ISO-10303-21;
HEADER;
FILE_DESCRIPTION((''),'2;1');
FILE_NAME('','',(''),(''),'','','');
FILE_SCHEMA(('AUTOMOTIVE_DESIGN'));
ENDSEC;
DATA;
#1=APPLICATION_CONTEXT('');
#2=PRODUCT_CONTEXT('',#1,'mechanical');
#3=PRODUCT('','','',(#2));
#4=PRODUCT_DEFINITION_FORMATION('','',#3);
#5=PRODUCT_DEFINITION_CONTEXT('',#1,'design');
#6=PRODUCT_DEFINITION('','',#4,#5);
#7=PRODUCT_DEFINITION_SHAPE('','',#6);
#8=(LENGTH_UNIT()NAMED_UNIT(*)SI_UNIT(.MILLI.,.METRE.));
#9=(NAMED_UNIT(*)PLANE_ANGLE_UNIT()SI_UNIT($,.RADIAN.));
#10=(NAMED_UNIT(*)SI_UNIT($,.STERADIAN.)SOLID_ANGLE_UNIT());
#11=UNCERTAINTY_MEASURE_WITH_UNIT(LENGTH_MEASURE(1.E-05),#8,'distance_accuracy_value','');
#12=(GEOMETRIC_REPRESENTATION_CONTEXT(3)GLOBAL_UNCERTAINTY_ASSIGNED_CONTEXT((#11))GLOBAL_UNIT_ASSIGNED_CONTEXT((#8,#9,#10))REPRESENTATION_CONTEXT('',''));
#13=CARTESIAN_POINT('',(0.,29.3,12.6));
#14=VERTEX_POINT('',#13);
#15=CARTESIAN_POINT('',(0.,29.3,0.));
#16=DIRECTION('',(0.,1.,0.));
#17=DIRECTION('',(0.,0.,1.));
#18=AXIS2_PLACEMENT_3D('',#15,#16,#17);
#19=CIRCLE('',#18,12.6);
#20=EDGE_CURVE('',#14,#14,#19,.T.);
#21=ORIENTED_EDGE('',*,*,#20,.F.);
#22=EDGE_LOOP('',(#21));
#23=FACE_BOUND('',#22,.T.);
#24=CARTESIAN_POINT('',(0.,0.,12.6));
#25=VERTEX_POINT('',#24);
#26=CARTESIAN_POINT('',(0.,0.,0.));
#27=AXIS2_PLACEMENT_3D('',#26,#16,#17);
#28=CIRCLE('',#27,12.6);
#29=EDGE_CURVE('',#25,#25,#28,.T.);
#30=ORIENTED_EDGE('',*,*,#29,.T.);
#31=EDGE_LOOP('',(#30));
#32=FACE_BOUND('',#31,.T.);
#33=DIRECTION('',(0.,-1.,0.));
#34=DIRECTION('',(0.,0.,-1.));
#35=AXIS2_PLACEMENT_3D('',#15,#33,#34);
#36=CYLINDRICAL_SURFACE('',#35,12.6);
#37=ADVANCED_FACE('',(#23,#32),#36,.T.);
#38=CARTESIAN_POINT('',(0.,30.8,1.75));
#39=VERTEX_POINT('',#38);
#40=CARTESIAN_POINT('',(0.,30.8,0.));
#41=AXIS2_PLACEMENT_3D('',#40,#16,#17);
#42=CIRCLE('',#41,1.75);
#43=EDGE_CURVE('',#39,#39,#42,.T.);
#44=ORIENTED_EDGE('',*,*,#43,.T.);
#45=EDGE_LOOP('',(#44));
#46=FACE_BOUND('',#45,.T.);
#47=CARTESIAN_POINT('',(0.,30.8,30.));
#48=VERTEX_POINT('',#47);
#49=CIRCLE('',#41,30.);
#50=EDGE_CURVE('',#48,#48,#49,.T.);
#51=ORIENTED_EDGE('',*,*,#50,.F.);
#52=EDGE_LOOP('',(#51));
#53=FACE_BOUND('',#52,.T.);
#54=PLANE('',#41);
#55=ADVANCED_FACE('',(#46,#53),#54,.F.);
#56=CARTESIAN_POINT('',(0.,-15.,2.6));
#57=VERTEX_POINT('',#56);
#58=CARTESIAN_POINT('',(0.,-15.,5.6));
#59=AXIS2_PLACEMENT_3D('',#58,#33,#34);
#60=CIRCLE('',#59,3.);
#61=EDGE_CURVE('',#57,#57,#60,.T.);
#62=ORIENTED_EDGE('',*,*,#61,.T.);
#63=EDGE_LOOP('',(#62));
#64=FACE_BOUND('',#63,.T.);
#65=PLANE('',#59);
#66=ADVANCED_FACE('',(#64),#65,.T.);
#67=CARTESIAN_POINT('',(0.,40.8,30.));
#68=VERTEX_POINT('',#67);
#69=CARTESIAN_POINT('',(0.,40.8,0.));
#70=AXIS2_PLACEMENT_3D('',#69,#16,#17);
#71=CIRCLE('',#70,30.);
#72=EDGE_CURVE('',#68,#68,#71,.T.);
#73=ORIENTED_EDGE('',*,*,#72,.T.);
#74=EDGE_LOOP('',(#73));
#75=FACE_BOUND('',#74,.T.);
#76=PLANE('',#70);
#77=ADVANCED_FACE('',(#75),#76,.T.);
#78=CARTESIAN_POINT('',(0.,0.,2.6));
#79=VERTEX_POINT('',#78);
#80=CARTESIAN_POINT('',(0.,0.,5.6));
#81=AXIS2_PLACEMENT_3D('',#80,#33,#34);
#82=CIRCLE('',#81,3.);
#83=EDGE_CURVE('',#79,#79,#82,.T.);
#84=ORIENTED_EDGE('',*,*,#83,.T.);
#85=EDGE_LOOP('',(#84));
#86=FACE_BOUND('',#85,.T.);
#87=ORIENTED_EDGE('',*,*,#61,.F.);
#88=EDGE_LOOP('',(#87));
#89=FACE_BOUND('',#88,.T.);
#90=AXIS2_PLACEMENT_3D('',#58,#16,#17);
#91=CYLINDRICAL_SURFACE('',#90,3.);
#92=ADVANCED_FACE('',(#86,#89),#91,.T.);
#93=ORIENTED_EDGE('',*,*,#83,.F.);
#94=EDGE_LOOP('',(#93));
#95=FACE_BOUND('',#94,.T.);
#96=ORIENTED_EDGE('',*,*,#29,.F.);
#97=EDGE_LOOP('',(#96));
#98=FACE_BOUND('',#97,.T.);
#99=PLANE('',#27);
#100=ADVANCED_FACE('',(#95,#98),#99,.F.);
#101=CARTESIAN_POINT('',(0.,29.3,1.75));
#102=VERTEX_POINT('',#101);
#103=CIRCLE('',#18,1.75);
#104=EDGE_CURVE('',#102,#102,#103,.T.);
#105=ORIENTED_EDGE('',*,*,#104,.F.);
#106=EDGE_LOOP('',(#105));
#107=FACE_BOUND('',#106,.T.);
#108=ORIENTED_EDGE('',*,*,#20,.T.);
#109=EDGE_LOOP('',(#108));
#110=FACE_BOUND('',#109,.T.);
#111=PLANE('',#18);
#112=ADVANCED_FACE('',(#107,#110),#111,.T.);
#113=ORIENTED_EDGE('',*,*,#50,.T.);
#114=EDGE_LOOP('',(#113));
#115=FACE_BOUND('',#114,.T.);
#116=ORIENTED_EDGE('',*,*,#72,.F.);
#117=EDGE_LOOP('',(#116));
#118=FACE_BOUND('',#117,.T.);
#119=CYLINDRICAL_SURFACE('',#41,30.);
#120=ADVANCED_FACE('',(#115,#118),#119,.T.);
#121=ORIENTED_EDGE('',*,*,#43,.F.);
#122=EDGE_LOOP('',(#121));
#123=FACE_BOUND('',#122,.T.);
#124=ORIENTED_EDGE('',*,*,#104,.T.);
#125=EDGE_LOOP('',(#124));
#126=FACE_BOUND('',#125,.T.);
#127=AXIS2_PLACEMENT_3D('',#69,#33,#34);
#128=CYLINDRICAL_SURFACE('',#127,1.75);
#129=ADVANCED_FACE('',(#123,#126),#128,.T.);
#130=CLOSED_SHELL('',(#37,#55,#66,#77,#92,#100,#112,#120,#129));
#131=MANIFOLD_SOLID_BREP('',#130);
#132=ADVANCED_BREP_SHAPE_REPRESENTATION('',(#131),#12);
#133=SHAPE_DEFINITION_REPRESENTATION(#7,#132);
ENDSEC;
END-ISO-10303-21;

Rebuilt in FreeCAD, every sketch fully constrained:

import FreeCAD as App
import Part
import Sketcher
from FreeCAD import Vector
Q = App.Units.Quantity

doc = App.newDocument("Part")
params = doc.addObject("Spreadsheet::Sheet", "Params")
for row, (alias, value) in enumerate([
    ("sketch1_diameter", "25.2 mm"),
    ("pad1_length", "29.3 mm"),
    ("sketch2_diameter", "3.5 mm"),
    ("pad2_length", "11.5 mm"),
    ("sketch3_diameter", "60 mm"),
    ("pad3_length", "10 mm"),
    ("sketch4_diameter", "6 mm"),
    ("pad4_length", "15 mm"),
], start=1):
    params.set(f"A{row}", alias)
    params.set(f"B{row}", "=" + value)
    params.setAlias(f"B{row}", alias)

body = doc.addObject("PartDesign::Body", "Body")

sketch1 = body.newObject("Sketcher::SketchObject", "Sketch")
sketch1.AttachmentSupport = (doc.getObject("XZ_Plane"), [""])
sketch1.MapMode = "FlatFace"
sketch1.addGeometry(Part.Circle(Vector(0, 0, 0), Vector(0, 0, 1), 13), False)
sketch1.addConstraint(Sketcher.Constraint("Coincident", 0, 3, -1, 1))
sketch1.addConstraint(Sketcher.Constraint("Diameter", 0, Q("25.2 mm")))
sketch1.setExpression("Constraints[1]", "Params.sketch1_diameter")
pad1 = body.newObject("PartDesign::Pad", "Pad")
pad1.Profile = sketch1
pad1.setExpression("Length", "Params.pad1_length")
pad1.Reversed = True

sketch2 = body.newObject("Sketcher::SketchObject", "Sketch001")
sketch2.AttachmentSupport = (doc.getObject("XZ_Plane"), [""])
sketch2.MapMode = "FlatFace"
sketch2.AttachmentOffset = App.Placement(Vector(0, 0, -29.3), App.Rotation())
sketch2.addGeometry(Part.Circle(Vector(0, 0, 0), Vector(0, 0, 1), 1.8), False)
sketch2.addConstraint(Sketcher.Constraint("Coincident", 0, 3, -1, 1))
sketch2.addConstraint(Sketcher.Constraint("Diameter", 0, Q("3.5 mm")))
sketch2.setExpression("Constraints[1]", "Params.sketch2_diameter")
pad2 = body.newObject("PartDesign::Pad", "Pad001")
pad2.Profile = sketch2
pad2.setExpression("Length", "Params.pad2_length")
pad2.Reversed = True

sketch3 = body.newObject("Sketcher::SketchObject", "Sketch002")
sketch3.AttachmentSupport = (doc.getObject("XZ_Plane"), [""])
sketch3.MapMode = "FlatFace"
sketch3.AttachmentOffset = App.Placement(Vector(0, 0, -40.8), App.Rotation())
sketch3.addGeometry(Part.Circle(Vector(0, 0, 0), Vector(0, 0, 1), 30), False)
sketch3.addConstraint(Sketcher.Constraint("Coincident", 0, 3, -1, 1))
sketch3.addConstraint(Sketcher.Constraint("Diameter", 0, Q("60 mm")))
sketch3.setExpression("Constraints[1]", "Params.sketch3_diameter")
pad3 = body.newObject("PartDesign::Pad", "Pad002")
pad3.Profile = sketch3
pad3.setExpression("Length", "Params.pad3_length")

sketch4 = body.newObject("Sketcher::SketchObject", "Sketch003")
sketch4.AttachmentSupport = (doc.getObject("XZ_Plane"), [""])
sketch4.MapMode = "FlatFace"
sketch4.addGeometry(Part.Circle(Vector(0, 5.6, 0), Vector(0, 0, 1), 3), False)
sketch4.addConstraint(Sketcher.Constraint("PointOnObject", 0, 3, -2))
sketch4.addConstraint(Sketcher.Constraint("Diameter", 0, Q("6 mm")))
sketch4.addConstraint(Sketcher.Constraint("DistanceY", -1, 1, 0, 3, Q("5.6 mm")))
sketch4.setExpression("Constraints[1]", "Params.sketch4_diameter")
pad4 = body.newObject("PartDesign::Pad", "Pad003")
pad4.Profile = sketch4
pad4.setExpression("Length", "Params.pad4_length")

doc.recompute()
